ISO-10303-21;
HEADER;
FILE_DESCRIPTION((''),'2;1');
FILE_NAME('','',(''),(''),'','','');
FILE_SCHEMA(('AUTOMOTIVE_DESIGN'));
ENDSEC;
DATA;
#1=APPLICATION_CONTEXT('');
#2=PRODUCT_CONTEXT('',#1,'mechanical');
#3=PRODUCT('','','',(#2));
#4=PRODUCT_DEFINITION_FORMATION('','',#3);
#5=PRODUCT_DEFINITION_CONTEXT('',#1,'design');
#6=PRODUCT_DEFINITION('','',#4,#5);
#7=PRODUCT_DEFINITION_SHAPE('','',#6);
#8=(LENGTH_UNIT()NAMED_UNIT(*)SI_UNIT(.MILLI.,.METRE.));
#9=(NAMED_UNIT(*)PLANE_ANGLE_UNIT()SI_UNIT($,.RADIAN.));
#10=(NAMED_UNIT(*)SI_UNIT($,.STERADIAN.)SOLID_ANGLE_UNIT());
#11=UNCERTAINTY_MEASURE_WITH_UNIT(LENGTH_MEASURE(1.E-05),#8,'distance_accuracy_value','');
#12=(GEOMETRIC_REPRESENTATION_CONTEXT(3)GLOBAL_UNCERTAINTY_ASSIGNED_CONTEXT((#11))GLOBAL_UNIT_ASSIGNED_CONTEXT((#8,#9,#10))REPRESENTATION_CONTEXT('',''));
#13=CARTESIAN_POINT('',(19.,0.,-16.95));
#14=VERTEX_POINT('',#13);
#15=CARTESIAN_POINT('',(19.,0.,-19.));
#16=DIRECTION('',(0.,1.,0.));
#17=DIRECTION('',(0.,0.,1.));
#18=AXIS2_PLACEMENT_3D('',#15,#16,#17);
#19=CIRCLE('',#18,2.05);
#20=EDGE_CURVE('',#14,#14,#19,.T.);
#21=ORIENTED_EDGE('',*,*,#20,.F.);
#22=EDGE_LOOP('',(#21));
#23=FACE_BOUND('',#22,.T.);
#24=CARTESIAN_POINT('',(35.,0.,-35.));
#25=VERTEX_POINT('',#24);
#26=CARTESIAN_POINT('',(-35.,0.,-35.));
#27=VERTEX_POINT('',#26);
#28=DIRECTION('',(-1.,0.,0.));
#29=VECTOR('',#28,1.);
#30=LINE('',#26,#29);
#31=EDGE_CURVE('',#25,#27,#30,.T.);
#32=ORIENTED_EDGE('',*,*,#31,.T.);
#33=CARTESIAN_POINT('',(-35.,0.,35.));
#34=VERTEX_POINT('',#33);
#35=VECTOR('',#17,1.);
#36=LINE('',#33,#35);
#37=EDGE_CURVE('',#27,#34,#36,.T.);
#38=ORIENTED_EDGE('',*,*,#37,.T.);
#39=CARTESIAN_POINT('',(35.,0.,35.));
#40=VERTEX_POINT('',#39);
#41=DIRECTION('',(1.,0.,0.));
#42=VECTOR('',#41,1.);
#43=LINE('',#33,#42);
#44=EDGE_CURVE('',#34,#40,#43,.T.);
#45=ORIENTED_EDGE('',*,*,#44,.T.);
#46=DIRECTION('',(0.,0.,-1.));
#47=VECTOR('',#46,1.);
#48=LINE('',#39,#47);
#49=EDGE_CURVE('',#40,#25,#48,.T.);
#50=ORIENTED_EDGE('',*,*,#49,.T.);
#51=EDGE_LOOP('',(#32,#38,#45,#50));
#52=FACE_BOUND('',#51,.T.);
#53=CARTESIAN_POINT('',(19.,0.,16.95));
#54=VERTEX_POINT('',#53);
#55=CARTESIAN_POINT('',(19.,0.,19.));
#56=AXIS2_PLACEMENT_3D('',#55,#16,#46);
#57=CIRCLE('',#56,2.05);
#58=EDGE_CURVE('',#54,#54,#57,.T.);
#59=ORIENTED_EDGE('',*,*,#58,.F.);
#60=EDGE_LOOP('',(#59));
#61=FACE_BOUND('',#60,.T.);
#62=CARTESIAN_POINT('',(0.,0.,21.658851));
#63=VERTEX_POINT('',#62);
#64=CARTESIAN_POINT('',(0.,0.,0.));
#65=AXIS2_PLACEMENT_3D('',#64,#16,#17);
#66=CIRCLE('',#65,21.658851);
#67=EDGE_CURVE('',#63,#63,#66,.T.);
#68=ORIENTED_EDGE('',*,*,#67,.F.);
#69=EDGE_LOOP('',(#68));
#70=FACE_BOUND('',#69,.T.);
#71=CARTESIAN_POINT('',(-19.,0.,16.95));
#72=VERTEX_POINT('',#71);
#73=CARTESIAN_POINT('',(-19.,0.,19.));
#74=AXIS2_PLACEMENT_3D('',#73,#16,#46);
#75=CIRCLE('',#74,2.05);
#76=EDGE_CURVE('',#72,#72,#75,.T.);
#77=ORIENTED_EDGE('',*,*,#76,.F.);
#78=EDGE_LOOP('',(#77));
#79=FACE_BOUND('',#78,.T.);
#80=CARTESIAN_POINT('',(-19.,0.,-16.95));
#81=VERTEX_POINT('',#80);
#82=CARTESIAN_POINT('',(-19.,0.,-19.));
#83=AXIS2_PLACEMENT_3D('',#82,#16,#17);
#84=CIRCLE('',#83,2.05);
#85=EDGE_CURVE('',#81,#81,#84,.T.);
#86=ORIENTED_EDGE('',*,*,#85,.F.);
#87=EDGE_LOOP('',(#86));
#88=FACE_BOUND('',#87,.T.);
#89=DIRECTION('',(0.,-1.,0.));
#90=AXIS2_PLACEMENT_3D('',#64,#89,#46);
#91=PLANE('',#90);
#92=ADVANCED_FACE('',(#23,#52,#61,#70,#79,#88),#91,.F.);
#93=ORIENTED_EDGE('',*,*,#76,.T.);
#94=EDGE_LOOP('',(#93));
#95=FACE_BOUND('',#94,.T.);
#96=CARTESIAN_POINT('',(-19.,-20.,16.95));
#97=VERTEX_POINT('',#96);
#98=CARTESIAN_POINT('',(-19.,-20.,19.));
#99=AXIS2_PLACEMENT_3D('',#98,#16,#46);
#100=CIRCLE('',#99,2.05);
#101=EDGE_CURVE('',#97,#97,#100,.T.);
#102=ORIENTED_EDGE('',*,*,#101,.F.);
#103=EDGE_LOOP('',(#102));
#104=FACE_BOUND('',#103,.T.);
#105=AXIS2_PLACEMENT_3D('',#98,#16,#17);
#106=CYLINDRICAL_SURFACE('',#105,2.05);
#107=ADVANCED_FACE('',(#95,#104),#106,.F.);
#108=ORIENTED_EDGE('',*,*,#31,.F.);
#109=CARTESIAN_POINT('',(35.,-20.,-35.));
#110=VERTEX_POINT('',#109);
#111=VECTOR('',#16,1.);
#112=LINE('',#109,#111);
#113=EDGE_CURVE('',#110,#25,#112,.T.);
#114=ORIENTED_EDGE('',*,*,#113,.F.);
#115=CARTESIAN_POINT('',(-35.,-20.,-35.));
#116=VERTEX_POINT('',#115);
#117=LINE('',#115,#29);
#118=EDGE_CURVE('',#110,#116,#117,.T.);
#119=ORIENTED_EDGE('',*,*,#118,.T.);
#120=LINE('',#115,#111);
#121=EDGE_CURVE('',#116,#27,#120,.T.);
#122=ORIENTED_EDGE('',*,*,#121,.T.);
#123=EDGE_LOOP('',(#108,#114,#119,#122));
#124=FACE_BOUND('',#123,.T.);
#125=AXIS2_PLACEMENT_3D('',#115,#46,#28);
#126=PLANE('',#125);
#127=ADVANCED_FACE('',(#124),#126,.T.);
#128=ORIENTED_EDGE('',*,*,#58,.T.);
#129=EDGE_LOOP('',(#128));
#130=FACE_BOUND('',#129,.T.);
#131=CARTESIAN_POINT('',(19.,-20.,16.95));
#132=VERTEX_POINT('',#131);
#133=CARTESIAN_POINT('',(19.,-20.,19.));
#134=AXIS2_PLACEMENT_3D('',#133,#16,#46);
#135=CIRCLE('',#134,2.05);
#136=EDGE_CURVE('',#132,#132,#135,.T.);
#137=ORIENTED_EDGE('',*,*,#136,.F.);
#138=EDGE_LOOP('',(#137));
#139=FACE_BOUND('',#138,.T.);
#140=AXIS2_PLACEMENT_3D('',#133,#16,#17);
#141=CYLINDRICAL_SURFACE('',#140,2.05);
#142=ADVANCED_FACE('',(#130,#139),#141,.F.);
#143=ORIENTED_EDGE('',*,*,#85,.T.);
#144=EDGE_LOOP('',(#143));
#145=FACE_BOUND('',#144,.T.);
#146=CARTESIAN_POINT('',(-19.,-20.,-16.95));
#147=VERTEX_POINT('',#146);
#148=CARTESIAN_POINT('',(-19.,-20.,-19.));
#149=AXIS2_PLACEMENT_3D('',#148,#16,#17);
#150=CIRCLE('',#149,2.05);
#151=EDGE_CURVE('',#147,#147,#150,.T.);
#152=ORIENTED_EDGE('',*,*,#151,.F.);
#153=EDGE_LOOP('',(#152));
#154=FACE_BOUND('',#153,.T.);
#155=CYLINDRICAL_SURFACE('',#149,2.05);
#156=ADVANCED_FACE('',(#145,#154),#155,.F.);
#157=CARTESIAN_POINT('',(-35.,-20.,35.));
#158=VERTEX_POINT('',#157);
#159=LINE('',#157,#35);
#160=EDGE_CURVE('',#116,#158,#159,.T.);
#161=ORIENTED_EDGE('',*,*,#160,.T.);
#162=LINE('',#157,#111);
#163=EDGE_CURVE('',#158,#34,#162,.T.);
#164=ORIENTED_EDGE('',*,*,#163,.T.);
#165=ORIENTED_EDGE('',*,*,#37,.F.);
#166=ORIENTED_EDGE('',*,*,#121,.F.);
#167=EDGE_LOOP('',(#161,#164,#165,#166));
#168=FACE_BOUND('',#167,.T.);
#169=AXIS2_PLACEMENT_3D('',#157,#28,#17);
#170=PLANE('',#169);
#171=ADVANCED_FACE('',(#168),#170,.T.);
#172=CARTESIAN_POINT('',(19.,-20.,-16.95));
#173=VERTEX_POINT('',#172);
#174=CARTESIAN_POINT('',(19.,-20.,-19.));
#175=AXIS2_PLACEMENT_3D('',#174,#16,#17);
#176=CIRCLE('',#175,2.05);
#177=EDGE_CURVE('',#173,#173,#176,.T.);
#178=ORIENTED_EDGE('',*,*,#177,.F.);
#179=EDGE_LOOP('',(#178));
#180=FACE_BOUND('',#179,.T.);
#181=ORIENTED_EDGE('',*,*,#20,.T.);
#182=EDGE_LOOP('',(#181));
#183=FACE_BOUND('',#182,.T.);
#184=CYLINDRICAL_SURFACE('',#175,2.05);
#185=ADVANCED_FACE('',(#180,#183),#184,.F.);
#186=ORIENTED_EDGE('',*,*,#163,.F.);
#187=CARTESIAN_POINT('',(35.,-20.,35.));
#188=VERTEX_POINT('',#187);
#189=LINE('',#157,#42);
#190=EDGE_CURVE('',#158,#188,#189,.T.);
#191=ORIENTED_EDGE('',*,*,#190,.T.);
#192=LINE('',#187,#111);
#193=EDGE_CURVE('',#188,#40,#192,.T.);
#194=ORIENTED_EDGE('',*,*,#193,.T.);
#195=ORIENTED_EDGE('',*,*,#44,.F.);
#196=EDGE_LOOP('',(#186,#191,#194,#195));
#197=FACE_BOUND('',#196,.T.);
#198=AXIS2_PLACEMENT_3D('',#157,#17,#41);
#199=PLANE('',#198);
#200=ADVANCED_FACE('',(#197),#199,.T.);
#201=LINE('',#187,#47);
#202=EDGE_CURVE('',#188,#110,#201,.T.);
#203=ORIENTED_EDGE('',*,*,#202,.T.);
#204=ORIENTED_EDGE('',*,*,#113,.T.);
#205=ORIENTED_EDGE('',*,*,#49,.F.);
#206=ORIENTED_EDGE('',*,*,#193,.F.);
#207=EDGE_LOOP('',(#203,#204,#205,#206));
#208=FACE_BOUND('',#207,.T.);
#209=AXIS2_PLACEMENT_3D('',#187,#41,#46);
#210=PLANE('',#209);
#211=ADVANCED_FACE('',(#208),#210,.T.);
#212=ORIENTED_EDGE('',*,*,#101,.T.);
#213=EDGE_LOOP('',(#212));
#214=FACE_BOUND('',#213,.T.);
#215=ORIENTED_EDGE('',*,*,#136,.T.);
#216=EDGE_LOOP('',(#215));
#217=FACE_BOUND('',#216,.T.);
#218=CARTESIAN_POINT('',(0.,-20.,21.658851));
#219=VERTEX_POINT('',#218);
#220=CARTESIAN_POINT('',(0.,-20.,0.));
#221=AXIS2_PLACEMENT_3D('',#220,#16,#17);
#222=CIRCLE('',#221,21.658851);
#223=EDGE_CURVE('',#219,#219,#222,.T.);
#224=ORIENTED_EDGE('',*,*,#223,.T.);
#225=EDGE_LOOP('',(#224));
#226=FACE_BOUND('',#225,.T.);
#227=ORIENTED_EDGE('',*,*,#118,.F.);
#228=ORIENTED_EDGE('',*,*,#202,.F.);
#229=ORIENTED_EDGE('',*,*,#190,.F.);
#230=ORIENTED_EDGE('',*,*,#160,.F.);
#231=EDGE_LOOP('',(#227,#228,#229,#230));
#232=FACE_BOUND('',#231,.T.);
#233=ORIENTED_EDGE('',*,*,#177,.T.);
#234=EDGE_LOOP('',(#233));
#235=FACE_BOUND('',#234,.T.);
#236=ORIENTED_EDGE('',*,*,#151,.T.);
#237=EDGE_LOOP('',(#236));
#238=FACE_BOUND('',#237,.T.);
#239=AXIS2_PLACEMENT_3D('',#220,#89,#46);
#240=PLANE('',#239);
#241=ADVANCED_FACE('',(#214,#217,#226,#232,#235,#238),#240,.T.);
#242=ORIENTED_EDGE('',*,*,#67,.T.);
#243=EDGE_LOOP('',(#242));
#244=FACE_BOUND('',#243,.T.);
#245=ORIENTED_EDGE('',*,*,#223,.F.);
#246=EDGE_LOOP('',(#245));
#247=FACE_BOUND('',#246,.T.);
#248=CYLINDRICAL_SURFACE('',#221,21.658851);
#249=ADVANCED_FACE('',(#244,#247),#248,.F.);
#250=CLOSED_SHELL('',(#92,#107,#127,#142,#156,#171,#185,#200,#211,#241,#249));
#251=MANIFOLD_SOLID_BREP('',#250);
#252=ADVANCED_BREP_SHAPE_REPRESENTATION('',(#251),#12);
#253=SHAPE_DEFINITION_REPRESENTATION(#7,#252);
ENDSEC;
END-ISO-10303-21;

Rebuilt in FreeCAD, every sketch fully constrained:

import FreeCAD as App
import Part
import Sketcher

V = App.Vector
Q = App.Units.Quantity


def add_polygon(sketch, points):
    """Adds a closed chain of lines whose ends are joined by coincident constraints."""
    first, n = sketch.GeometryCount, len(points)
    for a, b in zip(points, points[1:] + points[:1]):
        sketch.addGeometry(Part.LineSegment(App.Vector(*a, 0), App.Vector(*b, 0)), False)
    for i in range(n):
        sketch.addConstraint(Sketcher.Constraint("Coincident", first + i, 2, first + (i + 1) % n, 1))

doc = App.newDocument("Part")
body = doc.addObject("PartDesign::Body", "Body")

# Sketch on XZ plane
sketch1 = doc.addObject("Sketcher::SketchObject", "Sketch")
body.addObject(sketch1)
sketch1.AttachmentSupport = (doc.XZ_Plane, [""])
sketch1.MapMode = "FlatFace"
add_polygon(sketch1, [(-35, -35), (-35, 35), (35, 35), (35, -35)])  # lines 0-3
sketch1.addConstraint([
    Sketcher.Constraint("Vertical", 0),
    Sketcher.Constraint("Horizontal", 1),
    Sketcher.Constraint("Vertical", 2),
    Sketcher.Constraint("Horizontal", 3),
    Sketcher.Constraint("Symmetric", 0, 2, 2, 2, -1, 1),
    Sketcher.Constraint("Equal", 3, 0),
    Sketcher.Constraint("DistanceX", 1, 1, 1, 2, Q("70 mm")),
])
pad1 = doc.addObject("PartDesign::Pad", "Pad")
body.addObject(pad1)
pad1.Profile = sketch1
pad1.Length = 20

# Sketch on XY plane
sketch2 = doc.addObject("Sketcher::SketchObject", "Sketch001")
body.addObject(sketch2)
sketch2.AttachmentSupport = (doc.XY_Plane, [""])
sketch2.MapMode = "FlatFace"
sketch2.addGeometry([
    Part.LineSegment(V(0, 0, 0), V(0, -17.2, 0)),
    Part.BSplineCurve([V(0, -17.2, 0), V(0.530678, -17.2, 0), V(1.611575, -17.183509, 0), V(3.615531, -17.085887, 0), V(5.944127, -16.844919, 0), V(8.448434, -16.370131, 0), V(11.442656, -15.492934, 0), V(14.579655, -13.937243, 0), V(17.382164, -11.402739, 0), V(19.199009, -8.500897, 0), V(20.235691, -5.583194, 0), V(20.706491, -3.313388, 0), V(20.981886, -1.635929, 0), V(21.096877, -0.894239, 0), V(21.158851, -0.511527, 0)], [4, 1, 1, 1, 1, 1, 1, 1, 1, 1, 1, 1, 4], [0, 0.03125, 0.0625, 0.125, 0.1875, 0.25, 0.375, 0.5, 0.625, 0.75, 0.875, 0.9375, 1], False, 3, [1, 1, 1, 1, 1, 1, 1, 1, 1, 1, 1, 1, 1, 1, 1], False),
    Part.LineSegment(V(21.158851, -0.511527, 0), V(21.241685, 0, 0)),
    Part.LineSegment(V(21.241685, 0, 0), V(0, 0, 0)),
], False)
sketch2.addConstraint([
    Sketcher.Constraint("Block", 1),
    Sketcher.Constraint("Coincident", 0, 2, 1, 1),
    Sketcher.Constraint("Coincident", 1, 2, 2, 1),
    Sketcher.Constraint("Coincident", 2, 2, 3, 1),
    Sketcher.Constraint("Coincident", 3, 2, 0, 1),
    Sketcher.Constraint("Vertical", 0),
    Sketcher.Constraint("Horizontal", 3),
    Sketcher.Constraint("PointOnObject", 2, 2, -1),
    Sketcher.Constraint("Distance", 2, Q("0.51819 mm")),
])
groove = doc.addObject("PartDesign::Groove", "Groove")
body.addObject(groove)
groove.Profile = sketch2
groove.ReferenceAxis = (sketch2, ["V_Axis"])
groove.Angle = 360

# Sketch on XZ plane
sketch3 = doc.addObject("Sketcher::SketchObject", "Sketch002")
body.addObject(sketch3)
sketch3.AttachmentSupport = (doc.XZ_Plane, [""])
sketch3.MapMode = "FlatFace"
sketch3.addGeometry([
    Part.Circle(V(-19, -19, 0), V(0, 0, 1), 2),
    Part.Circle(V(19, 19, 0), V(0, 0, 1), 2),
    Part.Circle(V(-19, 19, 0), V(0, 0, 1), 2),
    Part.Circle(V(19, -19, 0), V(0, 0, 1), 2),
], False)
sketch3.addConstraint([
    Sketcher.Constraint("Equal", 0, 1),
    Sketcher.Constraint("Equal", 1, 2),
    Sketcher.Constraint("Equal", 2, 3),
    Sketcher.Constraint("Symmetric", 0, 3, 1, 3, -1, 1),
    Sketcher.Constraint("Symmetric", 2, 3, 3, 3, -1, 1),
    Sketcher.Constraint("Symmetric", 1, 3, 2, 3, -2),
    Sketcher.Constraint("Diameter", 0, Q("4.1 mm")),
    Sketcher.Constraint("DistanceX", 0, 3, -1, 1, Q("19 mm")),
    Sketcher.Constraint("DistanceY", 0, 3, -1, 1, Q("19 mm")),
])
pocket1 = doc.addObject("PartDesign::Pocket", "Pocket")
body.addObject(pocket1)
pocket1.Profile = sketch3
pocket1.Type = "ThroughAll"
pocket1.Reversed = True

# Sketch on XZ plane
sketch4 = doc.addObject("Sketcher::SketchObject", "Sketch003")
body.addObject(sketch4)
sketch4.AttachmentSupport = (doc.XZ_Plane, [""])
sketch4.MapMode = "FlatFace"
sketch4.addGeometry(Part.Circle(V(0, 0, 0), V(0, 0, 1), 22), False)
sketch4.addConstraint([
    Sketcher.Constraint("Coincident", 0, 3, -1, 1),
    Sketcher.Constraint("Diameter", 0, Q("43.317702 mm")),
])
pocket2 = doc.addObject("PartDesign::Pocket", "Pocket001")
body.addObject(pocket2)
pocket2.Profile = sketch4
pocket2.Type = "ThroughAll"
pocket2.Reversed = True

doc.recompute()
